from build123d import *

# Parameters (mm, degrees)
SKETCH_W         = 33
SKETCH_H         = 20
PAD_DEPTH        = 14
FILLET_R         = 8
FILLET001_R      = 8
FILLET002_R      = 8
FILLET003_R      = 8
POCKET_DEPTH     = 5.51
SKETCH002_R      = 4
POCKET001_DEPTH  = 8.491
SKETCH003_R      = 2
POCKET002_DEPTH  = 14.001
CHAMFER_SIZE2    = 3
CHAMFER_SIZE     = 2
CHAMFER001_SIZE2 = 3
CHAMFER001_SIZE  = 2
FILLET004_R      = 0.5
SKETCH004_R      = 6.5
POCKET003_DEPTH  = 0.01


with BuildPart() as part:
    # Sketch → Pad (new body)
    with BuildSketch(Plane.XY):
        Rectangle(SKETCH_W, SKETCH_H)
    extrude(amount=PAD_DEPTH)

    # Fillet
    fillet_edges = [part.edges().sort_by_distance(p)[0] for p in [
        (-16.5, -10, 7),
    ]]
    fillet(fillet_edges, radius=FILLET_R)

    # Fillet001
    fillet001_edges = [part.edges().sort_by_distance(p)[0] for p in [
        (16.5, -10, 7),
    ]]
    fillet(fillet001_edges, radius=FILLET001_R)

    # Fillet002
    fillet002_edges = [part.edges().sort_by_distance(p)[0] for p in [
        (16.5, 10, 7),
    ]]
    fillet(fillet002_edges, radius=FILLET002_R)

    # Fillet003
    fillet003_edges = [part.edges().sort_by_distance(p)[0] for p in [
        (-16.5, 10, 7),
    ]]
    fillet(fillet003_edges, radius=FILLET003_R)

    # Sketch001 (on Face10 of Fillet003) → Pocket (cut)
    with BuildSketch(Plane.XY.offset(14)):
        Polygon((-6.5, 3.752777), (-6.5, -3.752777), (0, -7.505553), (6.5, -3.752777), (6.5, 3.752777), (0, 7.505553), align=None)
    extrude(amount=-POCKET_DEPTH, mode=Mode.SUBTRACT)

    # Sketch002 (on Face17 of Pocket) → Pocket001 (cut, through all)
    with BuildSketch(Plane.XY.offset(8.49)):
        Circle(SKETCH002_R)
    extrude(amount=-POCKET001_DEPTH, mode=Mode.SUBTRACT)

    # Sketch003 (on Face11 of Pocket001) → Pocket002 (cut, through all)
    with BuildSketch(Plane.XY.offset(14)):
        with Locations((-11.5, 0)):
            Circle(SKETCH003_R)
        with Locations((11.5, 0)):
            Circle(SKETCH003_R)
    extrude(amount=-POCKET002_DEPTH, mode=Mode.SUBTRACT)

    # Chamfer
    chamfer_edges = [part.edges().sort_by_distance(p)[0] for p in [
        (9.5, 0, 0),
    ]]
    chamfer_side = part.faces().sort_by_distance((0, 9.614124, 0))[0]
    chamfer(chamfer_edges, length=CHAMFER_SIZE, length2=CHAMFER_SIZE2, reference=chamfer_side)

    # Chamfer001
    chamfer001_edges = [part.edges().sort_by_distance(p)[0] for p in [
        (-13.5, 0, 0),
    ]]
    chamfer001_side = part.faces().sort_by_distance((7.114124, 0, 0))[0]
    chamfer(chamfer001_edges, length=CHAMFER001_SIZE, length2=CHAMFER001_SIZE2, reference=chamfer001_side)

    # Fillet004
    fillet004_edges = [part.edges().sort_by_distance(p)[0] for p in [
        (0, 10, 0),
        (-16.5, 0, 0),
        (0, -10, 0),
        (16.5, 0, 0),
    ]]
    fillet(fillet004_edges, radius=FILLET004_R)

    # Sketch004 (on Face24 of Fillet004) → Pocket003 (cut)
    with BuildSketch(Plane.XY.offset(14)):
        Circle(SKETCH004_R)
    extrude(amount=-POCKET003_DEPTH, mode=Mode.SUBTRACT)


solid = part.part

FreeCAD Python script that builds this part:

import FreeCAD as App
import Part
import Sketcher
from FreeCAD import Vector
Q = App.Units.Quantity


def edges_at(feature, points):
    """Names of the edges that pass closest to the given points."""
    edges = feature.Shape.Edges
    near = lambda p: min(range(len(edges)), key=lambda i: edges[i].distToShape(Part.Vertex(*p))[0])
    return sorted({f"Edge{near(p) + 1}" for p in points})


def add_polygon(sketch, points):
    """Adds a closed chain of lines whose ends are joined by coincident constraints."""
    first, n = sketch.GeometryCount, len(points)
    for a, b in zip(points, points[1:] + points[:1]):
        sketch.addGeometry(Part.LineSegment(App.Vector(*a, 0), App.Vector(*b, 0)), False)
    for i in range(n):
        sketch.addConstraint(Sketcher.Constraint("Coincident", first + i, 2, first + (i + 1) % n, 1))

doc = App.newDocument("Part")
params = doc.addObject("Spreadsheet::Sheet", "Params")
for row, (alias, value) in enumerate([
    ("sketch1_width", "33 mm"),
    ("sketch1_height", "20 mm"),
    ("pad1_length", "14 mm"),
    ("fillet_radius", "8 mm"),
    ("fillet2_radius", "8 mm"),
    ("fillet3_radius", "8 mm"),
    ("fillet4_radius", "8 mm"),
    ("pocket1_length", "5.51 mm"),
    ("sketch3_diameter", "8 mm"),
    ("sketch4_diameter", "4 mm"),
    ("chamfer_size", "2 mm"),
    ("chamfer_size2", "3 mm"),
    ("chamfer2_size", "2 mm"),
    ("chamfer2_size2", "3 mm"),
    ("fillet5_radius", "0.5 mm"),
    ("sketch5_diameter", "13 mm"),
    ("pocket4_length", "0.01 mm"),
], start=1):
    params.set(f"A{row}", alias)
    params.set(f"B{row}", "=" + value)
    params.setAlias(f"B{row}", alias)

body = doc.addObject("PartDesign::Body", "Body")

# Sketch on XY plane
sketch1 = body.newObject("Sketcher::SketchObject", "Sketch")
sketch1.AttachmentSupport = (doc.getObject("XY_Plane"), [""])
sketch1.MapMode = "FlatFace"
add_polygon(sketch1, [(-16, 10), (-16, -10), (16, -10), (16, 10)])  # lines 0-3
sketch1.addConstraint([
    Sketcher.Constraint("Vertical", 0),
    Sketcher.Constraint("Horizontal", 1),
    Sketcher.Constraint("Vertical", 2),
    Sketcher.Constraint("Horizontal", 3),
    Sketcher.Constraint("Symmetric", 0, 2, 2, 2, -1, 1),
    Sketcher.Constraint("DistanceX", 1, 1, 1, 2, 33.0),
    Sketcher.Constraint("DistanceY", 0, 2, 0, 1, 20.0),
])
sketch1.setExpression("Constraints[9]", "Params.sketch1_width")
sketch1.setExpression("Constraints[10]", "Params.sketch1_height")
pad1 = body.newObject("PartDesign::Pad", "Pad")
pad1.Profile = sketch1
pad1.setExpression("Length", "Params.pad1_length")
doc.recompute()

fillet = body.newObject("PartDesign::Fillet", "Fillet")
fillet.Base = (pad1, edges_at(pad1, [(-16.5, -10, 7)]))
fillet.setExpression("Radius", "Params.fillet_radius")
doc.recompute()

fillet2 = body.newObject("PartDesign::Fillet", "Fillet001")
fillet2.Base = (fillet, edges_at(fillet, [(16.5, -10, 7)]))
fillet2.setExpression("Radius", "Params.fillet2_radius")
doc.recompute()

fillet3 = body.newObject("PartDesign::Fillet", "Fillet002")
fillet3.Base = (fillet2, edges_at(fillet2, [(16.5, 10, 7)]))
fillet3.setExpression("Radius", "Params.fillet3_radius")
doc.recompute()

fillet4 = body.newObject("PartDesign::Fillet", "Fillet003")
fillet4.Base = (fillet3, edges_at(fillet3, [(-16.5, 10, 7)]))
fillet4.setExpression("Radius", "Params.fillet4_radius")

# Sketch on XY plane
sketch2 = body.newObject("Sketcher::SketchObject", "Sketch001")
sketch2.AttachmentSupport = (doc.getObject("XY_Plane"), [""])
sketch2.MapMode = "FlatFace"
sketch2.AttachmentOffset = App.Placement(Vector(0, 0, 14), App.Rotation())
add_polygon(sketch2, [(-6, 4), (-6, -4), (0, -8), (6, -4), (6, 4), (0, 8)])  # lines 0-5
sketch2.addConstraint([
    Sketcher.Constraint("Vertical", 0),
    Sketcher.Constraint("Vertical", 3),
    Sketcher.Constraint("Symmetric", 0, 2, 3, 2, -1, 1),
    Sketcher.Constraint("Symmetric", 1, 2, 4, 2, -1, 1),
    Sketcher.Constraint("PointOnObject", 1, 2, -2),
    Sketcher.Constraint("Parallel", 2, 5),
    Sketcher.Constraint("Horizontal", 0, 2, 2, 2),
    Sketcher.Constraint("Angle", 1, Q("-29.999995 deg")),
    Sketcher.Constraint("DistanceX", 0, 2, 2, 2, 13.0),
    Sketcher.Constraint("DistanceY", 0, 2, 0, 1, 7.505554),
])
pocket1 = body.newObject("PartDesign::Pocket", "Pocket")
pocket1.Profile = sketch2
pocket1.setExpression("Length", "Params.pocket1_length")

# Sketch on XY plane
sketch3 = body.newObject("Sketcher::SketchObject", "Sketch002")
sketch3.AttachmentSupport = (doc.getObject("XY_Plane"), [""])
sketch3.MapMode = "FlatFace"
sketch3.AttachmentOffset = App.Placement(Vector(0, 0, 8.49), App.Rotation())
sketch3.addGeometry(Part.Circle(Vector(0, 0, 0), Vector(0, 0, 1), 4), False)
sketch3.addConstraint([
    Sketcher.Constraint("Coincident", 0, 3, -1, 1),
    Sketcher.Constraint("Diameter", 0, 8.0),
])
sketch3.setExpression("Constraints[1]", "Params.sketch3_diameter")
pocket2 = body.newObject("PartDesign::Pocket", "Pocket001")
pocket2.Profile = sketch3
pocket2.Type = "ThroughAll"

# Sketch on XY plane
sketch4 = body.newObject("Sketcher::SketchObject", "Sketch003")
sketch4.AttachmentSupport = (doc.getObject("XY_Plane"), [""])
sketch4.MapMode = "FlatFace"
sketch4.AttachmentOffset = App.Placement(Vector(0, 0, 14), App.Rotation())
sketch4.addGeometry([
    Part.Circle(Vector(-11.5, 0, 0), Vector(0, 0, 1), 2),
    Part.Circle(Vector(11.5, 0, 0), Vector(0, 0, 1), 2),
], False)
sketch4.addConstraint([
    Sketcher.Constraint("Equal", 0, 1),
    Sketcher.Constraint("Symmetric", 0, 3, 1, 3, -1, 1),
    Sketcher.Constraint("PointOnObject", 0, 3, -1),
    Sketcher.Constraint("Diameter", 0, 4.0),
    Sketcher.Constraint("DistanceX", 0, 3, 1, 3, 23.0),
])
sketch4.setExpression("Constraints[3]", "Params.sketch4_diameter")
pocket3 = body.newObject("PartDesign::Pocket", "Pocket002")
pocket3.Profile = sketch4
pocket3.Type = "ThroughAll"
doc.recompute()

chamfer = body.newObject("PartDesign::Chamfer", "Chamfer")
chamfer.Base = (pocket3, edges_at(pocket3, [(9.5, 0, 0)]))
chamfer.ChamferType = "Two distances"
chamfer.setExpression("Size", "Params.chamfer_size")
chamfer.setExpression("Size2", "Params.chamfer_size2")
doc.recompute()

chamfer2 = body.newObject("PartDesign::Chamfer", "Chamfer001")
chamfer2.Base = (chamfer, edges_at(chamfer, [(-13.5, 0, 0)]))
chamfer2.ChamferType = "Two distances"
chamfer2.setExpression("Size", "Params.chamfer2_size")
chamfer2.setExpression("Size2", "Params.chamfer2_size2")
doc.recompute()

fillet5 = body.newObject("PartDesign::Fillet", "Fillet004")
fillet5.Base = (chamfer2, edges_at(chamfer2, [
    (0, 10, 0),
    (-16.5, 0, 0),
    (0, -10, 0),
    (16.5, 0, 0),
]))
fillet5.setExpression("Radius", "Params.fillet5_radius")

# Sketch on XY plane
sketch5 = body.newObject("Sketcher::SketchObject", "Sketch004")
sketch5.AttachmentSupport = (doc.getObject("XY_Plane"), [""])
sketch5.MapMode = "FlatFace"
sketch5.AttachmentOffset = App.Placement(Vector(0, 0, 14), App.Rotation())
sketch5.addGeometry(Part.Circle(Vector(0, 0, 0), Vector(0, 0, 1), 6), False)
sketch5.addConstraint([
    Sketcher.Constraint("Coincident", 0, 3, -1, 1),
    Sketcher.Constraint("Diameter", 0, 13.0),
])
sketch5.setExpression("Constraints[1]", "Params.sketch5_diameter")
pocket4 = body.newObject("PartDesign::Pocket", "Pocket003")
pocket4.Profile = sketch5
pocket4.setExpression("Length", "Params.pocket4_length")

doc.recompute()
